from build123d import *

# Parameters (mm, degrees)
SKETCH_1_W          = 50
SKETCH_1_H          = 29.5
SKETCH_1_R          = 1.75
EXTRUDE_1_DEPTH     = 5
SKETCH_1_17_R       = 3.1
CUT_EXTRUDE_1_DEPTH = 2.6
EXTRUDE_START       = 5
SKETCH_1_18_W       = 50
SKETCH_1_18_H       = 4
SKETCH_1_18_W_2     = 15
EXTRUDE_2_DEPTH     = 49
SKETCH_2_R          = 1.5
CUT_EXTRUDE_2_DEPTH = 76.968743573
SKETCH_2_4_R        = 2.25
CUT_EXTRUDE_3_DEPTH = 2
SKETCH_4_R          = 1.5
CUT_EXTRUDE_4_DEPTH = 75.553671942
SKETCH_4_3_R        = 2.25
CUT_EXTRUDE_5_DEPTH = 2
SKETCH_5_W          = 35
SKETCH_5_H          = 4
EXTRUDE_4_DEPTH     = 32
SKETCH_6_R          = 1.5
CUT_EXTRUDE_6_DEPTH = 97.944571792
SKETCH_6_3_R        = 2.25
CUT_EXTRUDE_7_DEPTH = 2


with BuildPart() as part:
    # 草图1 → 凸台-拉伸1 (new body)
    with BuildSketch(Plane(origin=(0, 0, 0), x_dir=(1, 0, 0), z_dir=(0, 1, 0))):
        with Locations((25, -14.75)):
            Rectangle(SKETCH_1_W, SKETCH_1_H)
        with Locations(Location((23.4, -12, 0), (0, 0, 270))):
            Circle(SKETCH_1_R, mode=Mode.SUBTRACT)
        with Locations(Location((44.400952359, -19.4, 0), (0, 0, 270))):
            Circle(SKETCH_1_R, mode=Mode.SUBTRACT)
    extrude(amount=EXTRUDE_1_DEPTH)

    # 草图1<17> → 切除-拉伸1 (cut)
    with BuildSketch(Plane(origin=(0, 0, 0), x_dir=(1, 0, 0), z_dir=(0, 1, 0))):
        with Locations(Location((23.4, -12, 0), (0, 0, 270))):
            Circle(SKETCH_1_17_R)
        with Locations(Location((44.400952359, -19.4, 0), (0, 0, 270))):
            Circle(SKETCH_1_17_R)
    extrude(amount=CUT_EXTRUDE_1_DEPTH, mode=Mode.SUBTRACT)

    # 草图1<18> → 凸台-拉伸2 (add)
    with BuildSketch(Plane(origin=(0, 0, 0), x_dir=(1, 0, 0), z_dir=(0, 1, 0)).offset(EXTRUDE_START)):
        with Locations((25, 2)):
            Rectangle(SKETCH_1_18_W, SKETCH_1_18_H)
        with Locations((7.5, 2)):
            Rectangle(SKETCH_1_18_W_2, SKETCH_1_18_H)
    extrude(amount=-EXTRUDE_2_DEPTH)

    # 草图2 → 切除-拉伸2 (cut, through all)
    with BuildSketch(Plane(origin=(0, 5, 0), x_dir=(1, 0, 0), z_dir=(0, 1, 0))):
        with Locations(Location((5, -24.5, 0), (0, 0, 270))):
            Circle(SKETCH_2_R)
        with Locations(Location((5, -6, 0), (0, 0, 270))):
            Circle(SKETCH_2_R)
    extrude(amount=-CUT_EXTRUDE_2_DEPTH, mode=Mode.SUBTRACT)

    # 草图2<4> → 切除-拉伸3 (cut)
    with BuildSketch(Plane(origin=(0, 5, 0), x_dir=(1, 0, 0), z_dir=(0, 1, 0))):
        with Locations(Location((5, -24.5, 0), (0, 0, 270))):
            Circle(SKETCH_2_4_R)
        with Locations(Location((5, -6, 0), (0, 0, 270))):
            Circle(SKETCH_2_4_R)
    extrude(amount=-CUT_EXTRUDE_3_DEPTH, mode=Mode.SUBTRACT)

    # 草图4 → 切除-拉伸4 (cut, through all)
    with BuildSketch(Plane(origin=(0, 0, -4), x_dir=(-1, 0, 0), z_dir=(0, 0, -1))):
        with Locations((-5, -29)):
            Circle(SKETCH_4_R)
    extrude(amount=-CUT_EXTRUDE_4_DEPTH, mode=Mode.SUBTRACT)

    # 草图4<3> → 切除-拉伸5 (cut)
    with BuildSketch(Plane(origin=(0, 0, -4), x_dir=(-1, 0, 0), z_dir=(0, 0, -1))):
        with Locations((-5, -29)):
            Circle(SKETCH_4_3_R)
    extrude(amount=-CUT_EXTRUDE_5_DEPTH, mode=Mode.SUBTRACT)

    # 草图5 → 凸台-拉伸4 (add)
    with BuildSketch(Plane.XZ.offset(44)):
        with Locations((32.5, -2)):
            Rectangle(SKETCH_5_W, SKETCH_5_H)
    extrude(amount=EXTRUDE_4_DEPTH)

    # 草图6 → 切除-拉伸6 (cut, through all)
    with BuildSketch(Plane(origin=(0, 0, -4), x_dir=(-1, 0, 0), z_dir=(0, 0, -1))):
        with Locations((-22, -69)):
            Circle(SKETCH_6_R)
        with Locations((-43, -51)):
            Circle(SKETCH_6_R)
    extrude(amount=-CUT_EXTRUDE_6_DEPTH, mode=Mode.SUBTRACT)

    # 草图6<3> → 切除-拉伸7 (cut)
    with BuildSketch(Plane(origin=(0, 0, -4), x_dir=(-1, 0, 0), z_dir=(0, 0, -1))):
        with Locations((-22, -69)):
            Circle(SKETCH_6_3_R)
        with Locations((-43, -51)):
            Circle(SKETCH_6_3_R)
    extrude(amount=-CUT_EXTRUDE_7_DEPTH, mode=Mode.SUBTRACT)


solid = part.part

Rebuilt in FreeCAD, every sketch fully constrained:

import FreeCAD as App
import Part
import Sketcher
from FreeCAD import Vector
Q = App.Units.Quantity


def add_polygon(sketch, points):
    """Adds a closed chain of lines whose ends are joined by coincident constraints."""
    first, n = sketch.GeometryCount, len(points)
    for a, b in zip(points, points[1:] + points[:1]):
        sketch.addGeometry(Part.LineSegment(App.Vector(*a, 0), App.Vector(*b, 0)), False)
    for i in range(n):
        sketch.addConstraint(Sketcher.Constraint("Coincident", first + i, 2, first + (i + 1) % n, 1))

doc = App.newDocument("Part")
body = doc.addObject("PartDesign::Body", "Body")

# Sketch on XZ plane
sketch1 = body.newObject("Sketcher::SketchObject", "Sketch")
sketch1.AttachmentSupport = (doc.getObject("XZ_Plane"), [""])
sketch1.MapMode = "FlatFace"
add_polygon(sketch1, [(0, 0), (0, 29.5), (50, 29.5), (50, 0)])  # lines 0-3
sketch1.addGeometry(Part.Circle(Vector(44.400952, 19.4, 0), Vector(0, 0, 1), 1.75), False)  # 4
sketch1.addGeometry(Part.Circle(Vector(23.4, 12, 0), Vector(0, 0, 1), 1.75), False)  # 5
sketch1.addConstraint(Sketcher.Constraint("Vertical", 0))
sketch1.addConstraint(Sketcher.Constraint("Horizontal", 1))
sketch1.addConstraint(Sketcher.Constraint("Vertical", 2))
sketch1.addConstraint(Sketcher.Constraint("Horizontal", 3))
sketch1.addConstraint(Sketcher.Constraint("Coincident", 3, 2, -1, 1))
sketch1.addConstraint(Sketcher.Constraint("Equal", 4, 5))
sketch1.addConstraint(Sketcher.Constraint("Diameter", 4, Q("3.5 mm")))
sketch1.addConstraint(Sketcher.Constraint("DistanceX", 1, 1, 1, 2, Q("50 mm")))
sketch1.addConstraint(Sketcher.Constraint("DistanceY", 0, 1, 0, 2, Q("29.5 mm")))
sketch1.addConstraint(Sketcher.Constraint("DistanceY", -1, 1, 5, 3, Q("12 mm")))
sketch1.addConstraint(Sketcher.Constraint("DistanceY", -1, 1, 4, 3, Q("19.4 mm")))
sketch1.addConstraint(Sketcher.Constraint("DistanceX", -1, 1, 5, 3, Q("23.4 mm")))
sketch1.addConstraint(Sketcher.Constraint("DistanceX", -1, 1, 4, 3, Q("44.400952 mm")))
pad1 = body.newObject("PartDesign::Pad", "Pad")
pad1.Profile = sketch1
pad1.Length = 5
pad1.Reversed = True

# Sketch on XZ plane
sketch2 = body.newObject("Sketcher::SketchObject", "Sketch001")
sketch2.AttachmentSupport = (doc.getObject("XZ_Plane"), [""])
sketch2.MapMode = "FlatFace"
sketch2.addGeometry(Part.Circle(Vector(23.4, 12, 0), Vector(0, 0, 1), 3.1), False)
sketch2.addGeometry(Part.Circle(Vector(44.400952, 19.4, 0), Vector(0, 0, 1), 3.1), False)
sketch2.addConstraint(Sketcher.Constraint("Equal", 0, 1))
sketch2.addConstraint(Sketcher.Constraint("Diameter", 0, Q("6.2 mm")))
sketch2.addConstraint(Sketcher.Constraint("DistanceY", -1, 1, 0, 3, Q("12 mm")))
sketch2.addConstraint(Sketcher.Constraint("DistanceX", -1, 1, 0, 3, Q("23.4 mm")))
sketch2.addConstraint(Sketcher.Constraint("DistanceY", -1, 1, 1, 3, Q("19.4 mm")))
sketch2.addConstraint(Sketcher.Constraint("DistanceX", -1, 1, 1, 3, Q("44.400952 mm")))
pocket1 = body.newObject("PartDesign::Pocket", "Pocket")
pocket1.Profile = sketch2
pocket1.Length = 2.6

# Sketch on XZ plane
sketch3 = body.newObject("Sketcher::SketchObject", "Sketch002")
sketch3.AttachmentSupport = (doc.getObject("XZ_Plane"), [""])
sketch3.MapMode = "FlatFace"
sketch3.AttachmentOffset = App.Placement(Vector(0, 0, -5), App.Rotation())
add_polygon(sketch3, [(0, -4), (0, 0), (50, 0), (50, -4)])  # lines 0-3
sketch3.addConstraint(Sketcher.Constraint("Vertical", 0))
sketch3.addConstraint(Sketcher.Constraint("Horizontal", 1))
sketch3.addConstraint(Sketcher.Constraint("Vertical", 2))
sketch3.addConstraint(Sketcher.Constraint("Horizontal", 3))
sketch3.addConstraint(Sketcher.Constraint("Coincident", 0, 2, -1, 1))
sketch3.addConstraint(Sketcher.Constraint("DistanceX", 1, 1, 1, 2, Q("50 mm")))
sketch3.addConstraint(Sketcher.Constraint("DistanceY", 0, 1, 0, 2, Q("4 mm")))
pad2 = body.newObject("PartDesign::Pad", "Pad001")
pad2.Profile = sketch3
pad2.Length = 49

# Sketch on XZ plane
sketch4 = body.newObject("Sketcher::SketchObject", "Sketch003")
sketch4.AttachmentSupport = (doc.getObject("XZ_Plane"), [""])
sketch4.MapMode = "FlatFace"
sketch4.AttachmentOffset = App.Placement(Vector(0, 0, -5), App.Rotation())
sketch4.addGeometry(Part.Circle(Vector(5, 24.5, 0), Vector(0, 0, 1), 1.5), False)
sketch4.addGeometry(Part.Circle(Vector(5, 6, 0), Vector(0, 0, 1), 1.5), False)
sketch4.addConstraint(Sketcher.Constraint("Equal", 0, 1))
sketch4.addConstraint(Sketcher.Constraint("Vertical", 0, 3, 1, 3))
sketch4.addConstraint(Sketcher.Constraint("Diameter", 0, Q("3 mm")))
sketch4.addConstraint(Sketcher.Constraint("DistanceX", -1, 1, 0, 3, Q("5 mm")))
sketch4.addConstraint(Sketcher.Constraint("DistanceY", -1, 1, 1, 3, Q("6 mm")))
sketch4.addConstraint(Sketcher.Constraint("DistanceY", -1, 1, 0, 3, Q("24.5 mm")))
pocket2 = body.newObject("PartDesign::Pocket", "Pocket001")
pocket2.Profile = sketch4
pocket2.Type = "ThroughAll"
pocket2.Reversed = True

# Sketch on XZ plane
sketch5 = body.newObject("Sketcher::SketchObject", "Sketch004")
sketch5.AttachmentSupport = (doc.getObject("XZ_Plane"), [""])
sketch5.MapMode = "FlatFace"
sketch5.AttachmentOffset = App.Placement(Vector(0, 0, -5), App.Rotation())
sketch5.addGeometry(Part.Circle(Vector(5, 24.5, 0), Vector(0, 0, 1), 2.25), False)
sketch5.addGeometry(Part.Circle(Vector(5, 6, 0), Vector(0, 0, 1), 2.25), False)
sketch5.addConstraint(Sketcher.Constraint("Equal", 0, 1))
sketch5.addConstraint(Sketcher.Constraint("Vertical", 0, 3, 1, 3))
sketch5.addConstraint(Sketcher.Constraint("Diameter", 0, Q("4.5 mm")))
sketch5.addConstraint(Sketcher.Constraint("DistanceX", -1, 1, 0, 3, Q("5 mm")))
sketch5.addConstraint(Sketcher.Constraint("DistanceY", -1, 1, 1, 3, Q("6 mm")))
sketch5.addConstraint(Sketcher.Constraint("DistanceY", -1, 1, 0, 3, Q("24.5 mm")))
pocket3 = body.newObject("PartDesign::Pocket", "Pocket002")
pocket3.Profile = sketch5
pocket3.Length = 2
pocket3.Reversed = True

# Sketch on XY plane
sketch6 = body.newObject("Sketcher::SketchObject", "Sketch005")
sketch6.AttachmentSupport = (doc.getObject("XY_Plane"), [""])
sketch6.MapMode = "FlatFace"
sketch6.AttachmentOffset = App.Placement(Vector(0, 0, -4), App.Rotation())
sketch6.addGeometry(Part.Circle(Vector(5, -29, 0), Vector(0, 0, 1), 1.5), False)
sketch6.addConstraint(Sketcher.Constraint("Diameter", 0, Q("3 mm")))
sketch6.addConstraint(Sketcher.Constraint("DistanceX", -1, 1, 0, 3, Q("5 mm")))
sketch6.addConstraint(Sketcher.Constraint("DistanceY", 0, 3, -1, 1, Q("29 mm")))
pocket4 = body.newObject("PartDesign::Pocket", "Pocket003")
pocket4.Profile = sketch6
pocket4.Type = "ThroughAll"
pocket4.Reversed = True

# Sketch on XY plane
sketch7 = body.newObject("Sketcher::SketchObject", "Sketch006")
sketch7.AttachmentSupport = (doc.getObject("XY_Plane"), [""])
sketch7.MapMode = "FlatFace"
sketch7.AttachmentOffset = App.Placement(Vector(0, 0, -4), App.Rotation())
sketch7.addGeometry(Part.Circle(Vector(5, -29, 0), Vector(0, 0, 1), 2.25), False)
sketch7.addConstraint(Sketcher.Constraint("Diameter", 0, Q("4.5 mm")))
sketch7.addConstraint(Sketcher.Constraint("DistanceX", -1, 1, 0, 3, Q("5 mm")))
sketch7.addConstraint(Sketcher.Constraint("DistanceY", 0, 3, -1, 1, Q("29 mm")))
pocket5 = body.newObject("PartDesign::Pocket", "Pocket004")
pocket5.Profile = sketch7
pocket5.Length = 2
pocket5.Reversed = True

# Sketch on XZ plane
sketch8 = body.newObject("Sketcher::SketchObject", "Sketch007")
sketch8.AttachmentSupport = (doc.getObject("XZ_Plane"), [""])
sketch8.MapMode = "FlatFace"
sketch8.AttachmentOffset = App.Placement(Vector(0, 0, 44), App.Rotation())
add_polygon(sketch8, [(15, 0), (15, -4), (50, -4), (50, 0)])  # lines 0-3
sketch8.addConstraint(Sketcher.Constraint("Vertical", 0))
sketch8.addConstraint(Sketcher.Constraint("Horizontal", 1))
sketch8.addConstraint(Sketcher.Constraint("Vertical", 2))
sketch8.addConstraint(Sketcher.Constraint("Horizontal", 3))
sketch8.addConstraint(Sketcher.Constraint("PointOnObject", 2, 2, -1))
sketch8.addConstraint(Sketcher.Constraint("DistanceX", 1, 1, 1, 2, Q("35 mm")))
sketch8.addConstraint(Sketcher.Constraint("DistanceY", 0, 2, 0, 1, Q("4 mm")))
sketch8.addConstraint(Sketcher.Constraint("DistanceX", -1, 1, 0, 2, Q("15 mm")))
pad3 = body.newObject("PartDesign::Pad", "Pad002")
pad3.Profile = sketch8
pad3.Length = 32

# Sketch on XY plane
sketch9 = body.newObject("Sketcher::SketchObject", "Sketch008")
sketch9.AttachmentSupport = (doc.getObject("XY_Plane"), [""])
sketch9.MapMode = "FlatFace"
sketch9.AttachmentOffset = App.Placement(Vector(0, 0, -4), App.Rotation())
sketch9.addGeometry(Part.Circle(Vector(22, -69, 0), Vector(0, 0, 1), 1.5), False)
sketch9.addGeometry(Part.Circle(Vector(43, -51, 0), Vector(0, 0, 1), 1.5), False)
sketch9.addConstraint(Sketcher.Constraint("Equal", 0, 1))
sketch9.addConstraint(Sketcher.Constraint("Diameter", 0, Q("3 mm")))
sketch9.addConstraint(Sketcher.Constraint("DistanceX", -1, 1, 0, 3, Q("22 mm")))
sketch9.addConstraint(Sketcher.Constraint("DistanceY", 0, 3, -1, 1, Q("69 mm")))
sketch9.addConstraint(Sketcher.Constraint("DistanceX", -1, 1, 1, 3, Q("43 mm")))
sketch9.addConstraint(Sketcher.Constraint("DistanceY", 1, 3, -1, 1, Q("51 mm")))
pocket6 = body.newObject("PartDesign::Pocket", "Pocket005")
pocket6.Profile = sketch9
pocket6.Type = "ThroughAll"
pocket6.Reversed = True

# Sketch on XY plane
sketch10 = body.newObject("Sketcher::SketchObject", "Sketch009")
sketch10.AttachmentSupport = (doc.getObject("XY_Plane"), [""])
sketch10.MapMode = "FlatFace"
sketch10.AttachmentOffset = App.Placement(Vector(0, 0, -4), App.Rotation())
sketch10.addGeometry(Part.Circle(Vector(22, -69, 0), Vector(0, 0, 1), 2.25), False)
sketch10.addGeometry(Part.Circle(Vector(43, -51, 0), Vector(0, 0, 1), 2.25), False)
sketch10.addConstraint(Sketcher.Constraint("Equal", 0, 1))
sketch10.addConstraint(Sketcher.Constraint("Diameter", 0, Q("4.5 mm")))
sketch10.addConstraint(Sketcher.Constraint("DistanceX", -1, 1, 0, 3, Q("22 mm")))
sketch10.addConstraint(Sketcher.Constraint("DistanceY", 0, 3, -1, 1, Q("69 mm")))
sketch10.addConstraint(Sketcher.Constraint("DistanceX", -1, 1, 1, 3, Q("43 mm")))
sketch10.addConstraint(Sketcher.Constraint("DistanceY", 1, 3, -1, 1, Q("51 mm")))
pocket7 = body.newObject("PartDesign::Pocket", "Pocket006")
pocket7.Profile = sketch10
pocket7.Length = 2
pocket7.Reversed = True

doc.recompute()
